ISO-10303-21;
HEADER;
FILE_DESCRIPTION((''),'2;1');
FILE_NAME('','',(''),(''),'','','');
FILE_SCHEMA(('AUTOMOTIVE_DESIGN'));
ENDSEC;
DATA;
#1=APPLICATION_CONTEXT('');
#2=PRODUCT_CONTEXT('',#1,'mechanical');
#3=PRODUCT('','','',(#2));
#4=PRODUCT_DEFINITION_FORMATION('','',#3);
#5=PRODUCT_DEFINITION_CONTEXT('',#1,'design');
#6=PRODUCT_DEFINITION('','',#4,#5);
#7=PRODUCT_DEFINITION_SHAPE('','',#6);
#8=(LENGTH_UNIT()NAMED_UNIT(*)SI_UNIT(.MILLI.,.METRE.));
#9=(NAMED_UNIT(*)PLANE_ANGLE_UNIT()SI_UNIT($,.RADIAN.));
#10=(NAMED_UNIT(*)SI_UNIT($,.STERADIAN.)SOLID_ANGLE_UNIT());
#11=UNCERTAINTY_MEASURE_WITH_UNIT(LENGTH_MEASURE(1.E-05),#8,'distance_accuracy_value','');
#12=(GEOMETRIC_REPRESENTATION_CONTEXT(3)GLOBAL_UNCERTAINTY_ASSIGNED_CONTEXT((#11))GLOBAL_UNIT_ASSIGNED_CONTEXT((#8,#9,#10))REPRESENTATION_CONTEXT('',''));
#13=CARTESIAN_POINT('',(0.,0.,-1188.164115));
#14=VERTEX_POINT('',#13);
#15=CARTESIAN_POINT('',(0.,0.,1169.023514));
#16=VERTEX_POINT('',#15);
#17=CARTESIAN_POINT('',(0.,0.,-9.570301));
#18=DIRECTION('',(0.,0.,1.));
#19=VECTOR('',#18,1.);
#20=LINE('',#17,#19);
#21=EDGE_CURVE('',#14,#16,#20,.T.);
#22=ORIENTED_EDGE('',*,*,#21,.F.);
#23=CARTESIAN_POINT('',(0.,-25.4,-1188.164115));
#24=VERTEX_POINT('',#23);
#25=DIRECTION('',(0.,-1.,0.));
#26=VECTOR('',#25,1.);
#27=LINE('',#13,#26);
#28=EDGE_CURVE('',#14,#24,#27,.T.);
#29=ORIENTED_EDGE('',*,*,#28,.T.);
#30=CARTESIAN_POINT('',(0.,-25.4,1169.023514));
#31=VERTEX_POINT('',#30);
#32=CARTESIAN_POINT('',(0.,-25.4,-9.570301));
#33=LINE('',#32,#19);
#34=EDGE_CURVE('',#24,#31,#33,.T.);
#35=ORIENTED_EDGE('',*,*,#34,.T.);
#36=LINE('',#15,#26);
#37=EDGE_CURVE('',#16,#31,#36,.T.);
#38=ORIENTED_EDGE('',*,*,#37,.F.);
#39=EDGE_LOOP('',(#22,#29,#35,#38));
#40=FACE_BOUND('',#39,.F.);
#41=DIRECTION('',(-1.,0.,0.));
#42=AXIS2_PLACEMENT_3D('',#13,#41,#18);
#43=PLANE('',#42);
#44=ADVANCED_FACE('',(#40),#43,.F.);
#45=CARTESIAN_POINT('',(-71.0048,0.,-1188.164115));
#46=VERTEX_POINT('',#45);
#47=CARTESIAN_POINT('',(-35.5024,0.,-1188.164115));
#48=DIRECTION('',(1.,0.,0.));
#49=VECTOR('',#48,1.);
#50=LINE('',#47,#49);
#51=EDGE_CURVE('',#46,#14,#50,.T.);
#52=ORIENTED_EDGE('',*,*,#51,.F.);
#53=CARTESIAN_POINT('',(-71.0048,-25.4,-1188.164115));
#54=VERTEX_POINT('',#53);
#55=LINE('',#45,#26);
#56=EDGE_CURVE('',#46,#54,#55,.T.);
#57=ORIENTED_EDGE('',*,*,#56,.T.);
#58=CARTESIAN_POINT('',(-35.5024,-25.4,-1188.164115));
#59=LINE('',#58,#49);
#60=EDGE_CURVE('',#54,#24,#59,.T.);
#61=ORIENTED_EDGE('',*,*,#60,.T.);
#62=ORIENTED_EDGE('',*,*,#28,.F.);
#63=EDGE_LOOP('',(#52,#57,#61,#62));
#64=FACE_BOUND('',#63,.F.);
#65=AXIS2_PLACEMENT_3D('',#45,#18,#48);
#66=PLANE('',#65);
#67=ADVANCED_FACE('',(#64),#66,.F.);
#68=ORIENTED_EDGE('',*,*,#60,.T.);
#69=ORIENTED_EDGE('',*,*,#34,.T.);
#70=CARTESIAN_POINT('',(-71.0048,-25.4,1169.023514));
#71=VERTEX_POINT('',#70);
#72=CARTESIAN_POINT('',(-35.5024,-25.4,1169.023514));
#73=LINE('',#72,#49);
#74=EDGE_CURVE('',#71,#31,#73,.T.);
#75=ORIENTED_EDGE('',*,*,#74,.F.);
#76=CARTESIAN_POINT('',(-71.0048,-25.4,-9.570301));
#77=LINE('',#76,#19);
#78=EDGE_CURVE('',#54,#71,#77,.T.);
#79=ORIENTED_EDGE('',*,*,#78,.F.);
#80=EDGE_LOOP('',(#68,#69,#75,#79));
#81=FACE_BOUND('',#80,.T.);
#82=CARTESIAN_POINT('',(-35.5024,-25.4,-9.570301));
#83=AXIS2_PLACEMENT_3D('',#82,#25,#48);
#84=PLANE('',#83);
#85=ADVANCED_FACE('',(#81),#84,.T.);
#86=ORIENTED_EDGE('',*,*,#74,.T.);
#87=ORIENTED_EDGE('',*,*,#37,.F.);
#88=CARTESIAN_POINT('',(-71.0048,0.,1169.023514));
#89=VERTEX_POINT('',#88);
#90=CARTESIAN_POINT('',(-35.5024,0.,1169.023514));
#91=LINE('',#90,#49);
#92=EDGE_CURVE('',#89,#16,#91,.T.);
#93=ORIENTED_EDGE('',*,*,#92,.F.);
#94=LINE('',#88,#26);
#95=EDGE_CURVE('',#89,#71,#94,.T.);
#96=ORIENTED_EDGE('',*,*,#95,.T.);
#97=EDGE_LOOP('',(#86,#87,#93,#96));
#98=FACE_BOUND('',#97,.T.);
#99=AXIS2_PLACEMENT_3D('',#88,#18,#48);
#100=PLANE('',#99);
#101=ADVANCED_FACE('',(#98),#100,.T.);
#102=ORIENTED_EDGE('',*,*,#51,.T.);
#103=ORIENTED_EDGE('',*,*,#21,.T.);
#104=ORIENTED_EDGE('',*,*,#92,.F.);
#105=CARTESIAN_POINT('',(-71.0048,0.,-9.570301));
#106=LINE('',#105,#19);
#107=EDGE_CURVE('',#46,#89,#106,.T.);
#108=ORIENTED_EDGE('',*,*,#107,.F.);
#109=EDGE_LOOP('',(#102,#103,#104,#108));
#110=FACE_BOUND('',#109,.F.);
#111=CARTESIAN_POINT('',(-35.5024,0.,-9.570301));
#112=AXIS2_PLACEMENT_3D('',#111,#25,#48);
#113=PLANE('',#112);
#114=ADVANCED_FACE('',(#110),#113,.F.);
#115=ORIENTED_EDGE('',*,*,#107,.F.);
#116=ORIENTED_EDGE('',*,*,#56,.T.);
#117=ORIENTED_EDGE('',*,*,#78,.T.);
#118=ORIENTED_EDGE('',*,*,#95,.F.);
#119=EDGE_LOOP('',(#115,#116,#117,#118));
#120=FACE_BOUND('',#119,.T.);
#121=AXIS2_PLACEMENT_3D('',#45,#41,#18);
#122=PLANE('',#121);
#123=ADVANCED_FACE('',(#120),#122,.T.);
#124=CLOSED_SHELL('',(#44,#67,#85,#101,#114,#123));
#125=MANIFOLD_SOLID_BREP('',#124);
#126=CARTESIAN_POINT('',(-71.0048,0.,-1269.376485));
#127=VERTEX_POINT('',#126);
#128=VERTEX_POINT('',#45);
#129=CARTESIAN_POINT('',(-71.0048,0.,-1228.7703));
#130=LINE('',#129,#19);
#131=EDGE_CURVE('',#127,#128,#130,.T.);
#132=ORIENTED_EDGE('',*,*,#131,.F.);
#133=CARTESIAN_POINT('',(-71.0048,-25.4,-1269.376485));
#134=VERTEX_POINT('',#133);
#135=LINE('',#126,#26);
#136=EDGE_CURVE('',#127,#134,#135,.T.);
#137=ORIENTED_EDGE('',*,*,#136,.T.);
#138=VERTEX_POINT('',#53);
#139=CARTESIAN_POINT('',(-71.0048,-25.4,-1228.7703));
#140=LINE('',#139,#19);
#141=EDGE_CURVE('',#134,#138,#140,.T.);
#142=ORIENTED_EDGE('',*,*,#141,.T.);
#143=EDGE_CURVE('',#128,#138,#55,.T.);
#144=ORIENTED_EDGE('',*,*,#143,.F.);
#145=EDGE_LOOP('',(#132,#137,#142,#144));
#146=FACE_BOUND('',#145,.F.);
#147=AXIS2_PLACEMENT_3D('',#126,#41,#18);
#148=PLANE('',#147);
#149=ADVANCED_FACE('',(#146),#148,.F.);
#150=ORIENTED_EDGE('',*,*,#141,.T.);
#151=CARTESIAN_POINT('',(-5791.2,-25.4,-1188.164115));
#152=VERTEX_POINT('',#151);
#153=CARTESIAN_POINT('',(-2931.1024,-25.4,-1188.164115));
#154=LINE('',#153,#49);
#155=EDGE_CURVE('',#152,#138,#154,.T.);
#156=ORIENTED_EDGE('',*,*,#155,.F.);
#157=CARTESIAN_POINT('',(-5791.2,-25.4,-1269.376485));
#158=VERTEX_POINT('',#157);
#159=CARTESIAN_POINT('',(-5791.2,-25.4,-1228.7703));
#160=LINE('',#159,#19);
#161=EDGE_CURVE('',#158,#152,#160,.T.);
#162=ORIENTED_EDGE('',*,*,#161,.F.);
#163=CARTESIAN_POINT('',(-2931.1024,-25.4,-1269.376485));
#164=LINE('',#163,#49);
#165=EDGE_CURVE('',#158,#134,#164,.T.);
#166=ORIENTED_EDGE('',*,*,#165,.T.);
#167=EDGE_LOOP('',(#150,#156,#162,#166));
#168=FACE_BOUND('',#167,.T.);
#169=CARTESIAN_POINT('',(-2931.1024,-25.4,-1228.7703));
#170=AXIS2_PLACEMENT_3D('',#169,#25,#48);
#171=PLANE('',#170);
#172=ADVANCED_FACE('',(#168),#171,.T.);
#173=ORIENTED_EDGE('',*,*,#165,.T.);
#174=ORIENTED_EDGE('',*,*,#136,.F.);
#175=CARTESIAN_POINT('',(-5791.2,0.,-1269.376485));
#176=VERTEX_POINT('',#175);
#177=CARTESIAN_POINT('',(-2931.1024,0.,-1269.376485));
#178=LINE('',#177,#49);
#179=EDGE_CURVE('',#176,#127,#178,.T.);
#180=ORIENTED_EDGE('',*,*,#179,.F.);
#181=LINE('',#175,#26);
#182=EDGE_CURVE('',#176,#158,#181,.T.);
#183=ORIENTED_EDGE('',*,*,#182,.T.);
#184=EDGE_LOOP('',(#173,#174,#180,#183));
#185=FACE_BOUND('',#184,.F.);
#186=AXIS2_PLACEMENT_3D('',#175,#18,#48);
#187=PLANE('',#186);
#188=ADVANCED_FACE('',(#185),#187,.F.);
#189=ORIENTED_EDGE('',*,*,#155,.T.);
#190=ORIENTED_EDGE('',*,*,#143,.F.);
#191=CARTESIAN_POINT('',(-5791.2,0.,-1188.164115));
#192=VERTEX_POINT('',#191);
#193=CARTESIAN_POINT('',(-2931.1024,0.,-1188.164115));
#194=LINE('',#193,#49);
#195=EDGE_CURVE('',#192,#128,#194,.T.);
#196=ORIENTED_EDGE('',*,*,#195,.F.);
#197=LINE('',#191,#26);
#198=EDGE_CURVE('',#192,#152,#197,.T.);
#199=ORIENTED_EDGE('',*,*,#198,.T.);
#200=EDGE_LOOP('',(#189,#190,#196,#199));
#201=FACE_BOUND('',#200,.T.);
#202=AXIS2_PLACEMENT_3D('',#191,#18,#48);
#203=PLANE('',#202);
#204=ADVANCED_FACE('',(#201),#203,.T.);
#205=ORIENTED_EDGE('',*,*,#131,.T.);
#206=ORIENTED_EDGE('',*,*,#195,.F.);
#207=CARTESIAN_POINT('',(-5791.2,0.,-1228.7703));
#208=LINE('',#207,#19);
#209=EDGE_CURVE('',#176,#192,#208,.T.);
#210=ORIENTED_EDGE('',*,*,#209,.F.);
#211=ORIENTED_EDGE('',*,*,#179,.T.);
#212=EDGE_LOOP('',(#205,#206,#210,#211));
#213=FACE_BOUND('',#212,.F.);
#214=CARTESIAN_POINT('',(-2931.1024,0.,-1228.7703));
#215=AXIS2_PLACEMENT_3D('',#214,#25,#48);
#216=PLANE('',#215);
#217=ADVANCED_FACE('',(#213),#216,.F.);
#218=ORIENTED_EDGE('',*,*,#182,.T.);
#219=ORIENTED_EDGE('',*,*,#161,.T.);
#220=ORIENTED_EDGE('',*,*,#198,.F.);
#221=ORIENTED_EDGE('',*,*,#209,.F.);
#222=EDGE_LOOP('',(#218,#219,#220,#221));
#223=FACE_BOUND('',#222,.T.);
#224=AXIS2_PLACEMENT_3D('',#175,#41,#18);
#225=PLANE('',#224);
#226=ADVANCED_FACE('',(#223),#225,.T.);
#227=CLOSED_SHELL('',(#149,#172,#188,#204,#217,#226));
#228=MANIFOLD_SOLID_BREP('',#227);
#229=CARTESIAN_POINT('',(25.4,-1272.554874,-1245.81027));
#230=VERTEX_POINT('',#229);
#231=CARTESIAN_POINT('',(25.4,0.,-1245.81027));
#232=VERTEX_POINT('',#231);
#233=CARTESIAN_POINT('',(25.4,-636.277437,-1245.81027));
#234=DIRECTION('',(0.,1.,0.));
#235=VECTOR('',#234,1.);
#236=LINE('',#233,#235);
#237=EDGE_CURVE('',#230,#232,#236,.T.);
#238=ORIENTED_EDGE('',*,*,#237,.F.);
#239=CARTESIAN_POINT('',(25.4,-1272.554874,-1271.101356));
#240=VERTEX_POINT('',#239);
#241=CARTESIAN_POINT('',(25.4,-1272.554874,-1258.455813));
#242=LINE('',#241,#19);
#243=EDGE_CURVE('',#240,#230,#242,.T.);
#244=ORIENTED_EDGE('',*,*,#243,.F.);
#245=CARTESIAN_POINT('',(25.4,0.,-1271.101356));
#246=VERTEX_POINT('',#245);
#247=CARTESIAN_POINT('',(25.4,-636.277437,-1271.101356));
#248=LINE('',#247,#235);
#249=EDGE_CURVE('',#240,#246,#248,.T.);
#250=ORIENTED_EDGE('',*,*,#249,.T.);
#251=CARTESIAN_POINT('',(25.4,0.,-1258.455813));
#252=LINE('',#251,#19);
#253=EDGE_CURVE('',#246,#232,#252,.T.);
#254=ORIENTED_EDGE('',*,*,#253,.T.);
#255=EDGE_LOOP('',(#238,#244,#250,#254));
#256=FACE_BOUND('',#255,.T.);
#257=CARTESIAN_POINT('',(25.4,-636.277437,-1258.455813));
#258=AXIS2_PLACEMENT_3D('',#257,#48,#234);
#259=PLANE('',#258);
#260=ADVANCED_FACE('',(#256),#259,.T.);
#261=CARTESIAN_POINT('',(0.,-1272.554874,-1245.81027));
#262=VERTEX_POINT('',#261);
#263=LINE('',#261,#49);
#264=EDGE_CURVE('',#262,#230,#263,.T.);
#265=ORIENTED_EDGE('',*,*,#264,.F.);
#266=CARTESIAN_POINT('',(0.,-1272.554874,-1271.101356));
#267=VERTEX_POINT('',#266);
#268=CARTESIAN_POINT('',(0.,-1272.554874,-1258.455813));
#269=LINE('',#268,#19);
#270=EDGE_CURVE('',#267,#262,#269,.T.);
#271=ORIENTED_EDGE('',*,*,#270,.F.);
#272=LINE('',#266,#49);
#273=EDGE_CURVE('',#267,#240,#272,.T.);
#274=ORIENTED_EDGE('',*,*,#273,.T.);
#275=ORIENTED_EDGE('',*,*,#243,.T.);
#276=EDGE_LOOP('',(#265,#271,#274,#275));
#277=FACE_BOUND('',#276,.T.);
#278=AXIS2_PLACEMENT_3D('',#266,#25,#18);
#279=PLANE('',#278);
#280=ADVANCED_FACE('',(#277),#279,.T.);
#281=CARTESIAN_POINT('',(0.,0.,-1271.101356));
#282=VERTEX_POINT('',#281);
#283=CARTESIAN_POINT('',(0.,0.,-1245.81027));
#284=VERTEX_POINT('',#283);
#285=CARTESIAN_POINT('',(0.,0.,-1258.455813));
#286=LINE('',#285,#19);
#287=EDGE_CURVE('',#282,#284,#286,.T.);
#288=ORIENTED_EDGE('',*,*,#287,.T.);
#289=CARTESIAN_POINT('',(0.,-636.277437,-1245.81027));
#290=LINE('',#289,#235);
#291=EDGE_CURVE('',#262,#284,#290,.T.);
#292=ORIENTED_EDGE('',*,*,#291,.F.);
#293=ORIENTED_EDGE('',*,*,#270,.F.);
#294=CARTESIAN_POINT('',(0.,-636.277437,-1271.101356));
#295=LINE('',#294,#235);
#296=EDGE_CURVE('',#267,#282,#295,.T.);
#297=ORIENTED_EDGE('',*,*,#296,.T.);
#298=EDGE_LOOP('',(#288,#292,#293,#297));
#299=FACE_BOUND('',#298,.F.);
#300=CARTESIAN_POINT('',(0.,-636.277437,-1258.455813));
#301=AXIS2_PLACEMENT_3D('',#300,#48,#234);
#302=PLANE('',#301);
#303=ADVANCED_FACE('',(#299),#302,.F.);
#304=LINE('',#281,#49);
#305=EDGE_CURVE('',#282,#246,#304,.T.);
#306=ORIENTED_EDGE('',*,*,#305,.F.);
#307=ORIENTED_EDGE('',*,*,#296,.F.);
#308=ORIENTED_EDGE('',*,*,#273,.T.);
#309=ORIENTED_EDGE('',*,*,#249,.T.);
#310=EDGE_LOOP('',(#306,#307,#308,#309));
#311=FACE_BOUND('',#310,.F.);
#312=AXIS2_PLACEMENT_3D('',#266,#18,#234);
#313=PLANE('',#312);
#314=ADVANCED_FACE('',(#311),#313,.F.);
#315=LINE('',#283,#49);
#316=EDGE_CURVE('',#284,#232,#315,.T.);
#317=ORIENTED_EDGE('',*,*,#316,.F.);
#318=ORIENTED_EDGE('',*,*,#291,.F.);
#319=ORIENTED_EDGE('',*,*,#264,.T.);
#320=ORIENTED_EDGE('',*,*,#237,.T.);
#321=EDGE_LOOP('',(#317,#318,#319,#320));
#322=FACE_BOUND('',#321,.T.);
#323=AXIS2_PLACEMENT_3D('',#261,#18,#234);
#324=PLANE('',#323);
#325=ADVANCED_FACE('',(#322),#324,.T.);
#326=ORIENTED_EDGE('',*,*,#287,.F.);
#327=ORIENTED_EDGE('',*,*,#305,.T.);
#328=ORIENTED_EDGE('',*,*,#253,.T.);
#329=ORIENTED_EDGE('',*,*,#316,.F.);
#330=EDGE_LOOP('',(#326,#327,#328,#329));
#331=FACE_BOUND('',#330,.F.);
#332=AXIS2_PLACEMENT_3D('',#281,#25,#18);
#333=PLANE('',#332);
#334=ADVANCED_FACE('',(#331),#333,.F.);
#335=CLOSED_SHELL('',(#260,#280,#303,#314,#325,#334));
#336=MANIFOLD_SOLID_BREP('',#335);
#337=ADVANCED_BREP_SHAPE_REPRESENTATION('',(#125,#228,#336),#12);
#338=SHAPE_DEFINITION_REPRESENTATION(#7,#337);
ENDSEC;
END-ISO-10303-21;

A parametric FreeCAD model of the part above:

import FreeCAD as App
import Part
import Sketcher
Q = App.Units.Quantity

doc = App.newDocument("Part")
body = doc.addObject("PartDesign::Body", "Body")

# Sketch on XZ plane
sketch1 = doc.addObject("Sketcher::SketchObject", "Sketch")
body.addObject(sketch1)
sketch1.AttachmentSupport = (doc.XZ_Plane, [""])
sketch1.MapMode = "FlatFace"
sketch1.addGeometry([
    Part.LineSegment(App.Vector(-71.0048, 1169.023514, 0), App.Vector(-71.0048, -1188.164115, 0)),
    Part.LineSegment(App.Vector(-71.0048, -1188.164115, 0), App.Vector(0, -1188.164115, 0)),
    Part.LineSegment(App.Vector(0, -1188.164115, 0), App.Vector(0, 1169.023514, 0)),
    Part.LineSegment(App.Vector(0, 1169.023514, 0), App.Vector(-71.0048, 1169.023514, 0)),
], False)
sketch1.addConstraint([
    Sketcher.Constraint("Coincident", 0, 2, 1, 1),
    Sketcher.Constraint("Coincident", 1, 2, 2, 1),
    Sketcher.Constraint("Coincident", 2, 2, 3, 1),
    Sketcher.Constraint("Coincident", 3, 2, 0, 1),
    Sketcher.Constraint("Vertical", 0),
    Sketcher.Constraint("Horizontal", 1),
    Sketcher.Constraint("Vertical", 2),
    Sketcher.Constraint("Horizontal", 3),
    Sketcher.Constraint("PointOnObject", 1, 2, -2),
    Sketcher.Constraint("DistanceX", 1, 1, 1, 2, Q("71.0048 mm")),
    Sketcher.Constraint("DistanceY", 0, 2, 0, 1, Q("2357.187629 mm")),
    Sketcher.Constraint("DistanceY", 0, 2, -1, 1, Q("1188.164115 mm")),
])
pad1 = doc.addObject("PartDesign::Pad", "Pad")
body.addObject(pad1)
pad1.Profile = sketch1
pad1.Length = Q("1 in")
body2 = doc.addObject("PartDesign::Body", "Body001")

# Sketch on XZ plane
sketch2 = doc.addObject("Sketcher::SketchObject", "Sketch001")
body2.addObject(sketch2)
sketch2.AttachmentSupport = (doc.getObject("XZ_Plane001"), [""])
sketch2.MapMode = "FlatFace"
sketch2.addGeometry([
    Part.LineSegment(App.Vector(-5791.2, -1188.164115, 0), App.Vector(-5791.2, -1269.376485, 0)),
    Part.LineSegment(App.Vector(-5791.2, -1269.376485, 0), App.Vector(-71.0048, -1269.376485, 0)),
    Part.LineSegment(App.Vector(-71.0048, -1269.376485, 0), App.Vector(-71.0048, -1188.164115, 0)),
    Part.LineSegment(App.Vector(-71.0048, -1188.164115, 0), App.Vector(-5791.2, -1188.164115, 0)),
], False)
sketch2.addConstraint([
    Sketcher.Constraint("Coincident", 0, 2, 1, 1),
    Sketcher.Constraint("Coincident", 1, 2, 2, 1),
    Sketcher.Constraint("Coincident", 2, 2, 3, 1),
    Sketcher.Constraint("Coincident", 3, 2, 0, 1),
    Sketcher.Constraint("Vertical", 0),
    Sketcher.Constraint("Horizontal", 1),
    Sketcher.Constraint("Vertical", 2),
    Sketcher.Constraint("Horizontal", 3),
    Sketcher.Constraint("DistanceX", 0, 2, -1, 1, Q("228 in")),
    Sketcher.Constraint("DistanceX", 1, 1, 1, 2, Q("5720.1952 mm")),
    Sketcher.Constraint("DistanceY", 0, 2, 0, 1, Q("81.212371 mm")),
    Sketcher.Constraint("DistanceY", 0, 2, -1, 1, Q("1269.376485 mm")),
])
pad2 = doc.addObject("PartDesign::Pad", "Pad001")
body2.addObject(pad2)
pad2.Profile = sketch2
pad2.Length = Q("1 in")
body3 = doc.addObject("PartDesign::Body", "Body002")

# Sketch on YZ plane
sketch3 = doc.addObject("Sketcher::SketchObject", "Sketch002")
body3.addObject(sketch3)
sketch3.AttachmentSupport = (doc.getObject("YZ_Plane002"), [""])
sketch3.MapMode = "FlatFace"
sketch3.addGeometry([
    Part.LineSegment(App.Vector(-1272.554874, -1245.81027, 0), App.Vector(-1272.554874, -1271.101356, 0)),
    Part.LineSegment(App.Vector(-1272.554874, -1271.101356, 0), App.Vector(0, -1271.101356, 0)),
    Part.LineSegment(App.Vector(0, -1271.101356, 0), App.Vector(0, -1245.81027, 0)),
    Part.LineSegment(App.Vector(0, -1245.81027, 0), App.Vector(-1272.554874, -1245.81027, 0)),
], False)
sketch3.addConstraint([
    Sketcher.Constraint("Coincident", 0, 2, 1, 1),
    Sketcher.Constraint("Coincident", 1, 2, 2, 1),
    Sketcher.Constraint("Coincident", 2, 2, 3, 1),
    Sketcher.Constraint("Coincident", 3, 2, 0, 1),
    Sketcher.Constraint("Vertical", 0),
    Sketcher.Constraint("Horizontal", 1),
    Sketcher.Constraint("Vertical", 2),
    Sketcher.Constraint("Horizontal", 3),
    Sketcher.Constraint("PointOnObject", 1, 2, -2),
    Sketcher.Constraint("DistanceX", 1, 1, 1, 2, Q("1272.554874 mm")),
    Sketcher.Constraint("DistanceY", 0, 2, 0, 1, Q("25.291086 mm")),
    Sketcher.Constraint("DistanceY", 2, 2, -1, 1, Q("1245.81027 mm")),
])
pad3 = doc.addObject("PartDesign::Pad", "Pad002")
body3.addObject(pad3)
pad3.Profile = sketch3
pad3.Length = Q("1 in")

doc.recompute()
